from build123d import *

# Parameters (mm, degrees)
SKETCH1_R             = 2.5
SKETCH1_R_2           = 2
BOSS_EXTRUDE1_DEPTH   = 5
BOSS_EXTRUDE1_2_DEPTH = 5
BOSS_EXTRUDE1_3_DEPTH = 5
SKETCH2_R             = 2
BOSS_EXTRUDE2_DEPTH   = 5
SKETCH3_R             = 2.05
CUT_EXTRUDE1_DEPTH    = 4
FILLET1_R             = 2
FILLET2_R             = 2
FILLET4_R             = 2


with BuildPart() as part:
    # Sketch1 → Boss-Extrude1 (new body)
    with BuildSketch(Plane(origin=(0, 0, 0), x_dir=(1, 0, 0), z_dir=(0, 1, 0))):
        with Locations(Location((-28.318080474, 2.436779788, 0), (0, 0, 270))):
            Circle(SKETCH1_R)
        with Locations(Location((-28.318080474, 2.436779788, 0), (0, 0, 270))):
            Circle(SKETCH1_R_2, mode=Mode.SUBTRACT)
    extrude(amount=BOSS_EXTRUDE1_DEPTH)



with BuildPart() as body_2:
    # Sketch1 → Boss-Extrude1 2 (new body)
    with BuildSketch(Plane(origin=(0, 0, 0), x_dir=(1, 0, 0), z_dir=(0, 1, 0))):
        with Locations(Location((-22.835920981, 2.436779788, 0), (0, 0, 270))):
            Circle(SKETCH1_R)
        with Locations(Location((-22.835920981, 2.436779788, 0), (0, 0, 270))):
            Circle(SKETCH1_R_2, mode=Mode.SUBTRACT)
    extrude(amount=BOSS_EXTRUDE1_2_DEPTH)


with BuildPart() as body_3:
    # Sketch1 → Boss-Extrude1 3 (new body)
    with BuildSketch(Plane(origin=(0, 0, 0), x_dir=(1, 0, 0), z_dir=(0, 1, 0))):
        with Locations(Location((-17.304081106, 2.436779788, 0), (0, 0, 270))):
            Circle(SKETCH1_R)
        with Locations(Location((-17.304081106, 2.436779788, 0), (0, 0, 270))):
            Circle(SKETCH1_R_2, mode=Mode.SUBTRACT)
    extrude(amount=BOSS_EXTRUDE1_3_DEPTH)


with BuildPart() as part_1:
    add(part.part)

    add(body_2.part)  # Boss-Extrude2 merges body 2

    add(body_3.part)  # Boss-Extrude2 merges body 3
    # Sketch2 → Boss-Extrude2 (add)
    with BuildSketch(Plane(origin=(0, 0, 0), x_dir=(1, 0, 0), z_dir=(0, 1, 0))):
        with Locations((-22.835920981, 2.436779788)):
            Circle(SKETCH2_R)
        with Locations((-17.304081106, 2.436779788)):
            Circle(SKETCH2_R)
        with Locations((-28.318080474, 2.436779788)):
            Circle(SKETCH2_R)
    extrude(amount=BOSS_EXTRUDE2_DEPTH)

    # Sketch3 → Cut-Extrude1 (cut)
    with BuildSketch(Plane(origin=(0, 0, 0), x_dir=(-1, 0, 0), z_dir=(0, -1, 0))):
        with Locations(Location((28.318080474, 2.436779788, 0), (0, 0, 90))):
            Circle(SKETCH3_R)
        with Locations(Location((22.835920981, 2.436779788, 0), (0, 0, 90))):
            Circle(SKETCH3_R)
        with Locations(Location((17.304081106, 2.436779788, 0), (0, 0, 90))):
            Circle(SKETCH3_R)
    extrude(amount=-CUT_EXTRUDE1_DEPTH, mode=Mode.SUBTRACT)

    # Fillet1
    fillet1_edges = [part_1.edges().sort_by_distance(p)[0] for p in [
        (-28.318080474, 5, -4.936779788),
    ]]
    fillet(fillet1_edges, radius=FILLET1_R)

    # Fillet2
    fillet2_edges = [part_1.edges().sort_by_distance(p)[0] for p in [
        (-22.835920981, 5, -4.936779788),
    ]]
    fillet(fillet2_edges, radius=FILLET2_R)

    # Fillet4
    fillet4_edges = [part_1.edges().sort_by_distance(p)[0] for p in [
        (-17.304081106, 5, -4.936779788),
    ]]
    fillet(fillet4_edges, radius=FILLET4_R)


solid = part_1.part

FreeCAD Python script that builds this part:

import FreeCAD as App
import Part
import Sketcher
from FreeCAD import Vector
Q = App.Units.Quantity


def edges_at(feature, points):
    """Names of the edges that pass closest to the given points."""
    edges = feature.Shape.Edges
    near = lambda p: min(range(len(edges)), key=lambda i: edges[i].distToShape(Part.Vertex(*p))[0])
    return sorted({f"Edge{near(p) + 1}" for p in points})

doc = App.newDocument("Part")
body = doc.addObject("PartDesign::Body", "Body")

# Sketch on XZ plane
sketch1 = body.newObject("Sketcher::SketchObject", "Sketch")
sketch1.AttachmentSupport = (doc.getObject("XZ_Plane"), [""])
sketch1.MapMode = "FlatFace"
sketch1.addGeometry([
    Part.Circle(Vector(-28.3, -2.4, 0), Vector(0, 0, 1), 2.5),
    Part.Circle(Vector(-28.3, -2.4, 0), Vector(0, 0, 1), 2),
], False)
sketch1.addConstraint([
    Sketcher.Constraint("Coincident", 1, 3, 0, 3),
    Sketcher.Constraint("Diameter", 0, Q("5 mm")),
    Sketcher.Constraint("Diameter", 1, Q("4 mm")),
    Sketcher.Constraint("DistanceX", 0, 3, -1, 1, Q("28.31808 mm")),
    Sketcher.Constraint("DistanceY", 0, 3, -1, 1, Q("2.43678 mm")),
])
pad1 = body.newObject("PartDesign::Pad", "Pad")
pad1.Profile = sketch1
pad1.Length = 5
pad1.Reversed = True
body2 = doc.addObject("PartDesign::Body", "Body001")

# Sketch on XZ plane
sketch2 = body2.newObject("Sketcher::SketchObject", "Sketch001")
sketch2.AttachmentSupport = (doc.getObject("XZ_Plane001"), [""])
sketch2.MapMode = "FlatFace"
sketch2.addGeometry([
    Part.Circle(Vector(-22.8, -2.4, 0), Vector(0, 0, 1), 2.5),
    Part.Circle(Vector(-22.8, -2.4, 0), Vector(0, 0, 1), 2),
], False)
sketch2.addConstraint([
    Sketcher.Constraint("Coincident", 1, 3, 0, 3),
    Sketcher.Constraint("Diameter", 0, Q("5 mm")),
    Sketcher.Constraint("Diameter", 1, Q("4 mm")),
    Sketcher.Constraint("DistanceX", 0, 3, -1, 1, Q("22.835921 mm")),
    Sketcher.Constraint("DistanceY", 0, 3, -1, 1, Q("2.43678 mm")),
])
pad2 = body2.newObject("PartDesign::Pad", "Pad001")
pad2.Profile = sketch2
pad2.Length = 5
pad2.Reversed = True
body3 = doc.addObject("PartDesign::Body", "Body002")

# Sketch on XZ plane
sketch3 = body3.newObject("Sketcher::SketchObject", "Sketch002")
sketch3.AttachmentSupport = (doc.getObject("XZ_Plane002"), [""])
sketch3.MapMode = "FlatFace"
sketch3.addGeometry([
    Part.Circle(Vector(-17.3, -2.4, 0), Vector(0, 0, 1), 2.5),
    Part.Circle(Vector(-17.3, -2.4, 0), Vector(0, 0, 1), 2),
], False)
sketch3.addConstraint([
    Sketcher.Constraint("Coincident", 1, 3, 0, 3),
    Sketcher.Constraint("Diameter", 0, Q("5 mm")),
    Sketcher.Constraint("Diameter", 1, Q("4 mm")),
    Sketcher.Constraint("DistanceX", 0, 3, -1, 1, Q("17.304081 mm")),
    Sketcher.Constraint("DistanceY", 0, 3, -1, 1, Q("2.43678 mm")),
])
pad3 = body3.newObject("PartDesign::Pad", "Pad002")
pad3.Profile = sketch3
pad3.Length = 5
pad3.Reversed = True
body.AllowCompound = True
doc.recompute()

boolean = body.newObject("PartDesign::Boolean", "Boolean")
boolean.Type = "Fuse"
boolean.addObjects([body2])
doc.recompute()

boolean2 = body.newObject("PartDesign::Boolean", "Boolean001")
boolean2.Type = "Fuse"
boolean2.addObjects([body3])

# Sketch on XZ plane
sketch4 = body.newObject("Sketcher::SketchObject", "Sketch003")
sketch4.AttachmentSupport = (doc.getObject("XZ_Plane"), [""])
sketch4.MapMode = "FlatFace"
sketch4.addGeometry([
    Part.Circle(Vector(-22.8, -2.4, 0), Vector(0, 0, 1), 2),
    Part.Circle(Vector(-17.3, -2.4, 0), Vector(0, 0, 1), 2),
    Part.Circle(Vector(-28.3, -2.4, 0), Vector(0, 0, 1), 2),
], False)
sketch4.addConstraint([
    Sketcher.Constraint("Equal", 0, 1),
    Sketcher.Constraint("Equal", 1, 2),
    Sketcher.Constraint("Horizontal", 0, 3, 1, 3),
    Sketcher.Constraint("Horizontal", 1, 3, 2, 3),
    Sketcher.Constraint("Diameter", 0, Q("4 mm")),
    Sketcher.Constraint("DistanceX", 2, 3, 1, 3, Q("11.013999 mm")),
    Sketcher.Constraint("DistanceX", 0, 3, -1, 1, Q("22.835921 mm")),
    Sketcher.Constraint("DistanceY", 0, 3, -1, 1, Q("2.43678 mm")),
    Sketcher.Constraint("DistanceX", 1, 3, -1, 1, Q("17.304081 mm")),
])
pad4 = body.newObject("PartDesign::Pad", "Pad003")
pad4.Profile = sketch4
pad4.Length = 5
pad4.Reversed = True

# Sketch on XZ plane
sketch5 = body.newObject("Sketcher::SketchObject", "Sketch004")
sketch5.AttachmentSupport = (doc.getObject("XZ_Plane"), [""])
sketch5.MapMode = "FlatFace"
sketch5.addGeometry([
    Part.Circle(Vector(-28.3, -2.4, 0), Vector(0, 0, 1), 2),
    Part.Circle(Vector(-22.8, -2.4, 0), Vector(0, 0, 1), 2),
    Part.Circle(Vector(-17.3, -2.4, 0), Vector(0, 0, 1), 2),
], False)
sketch5.addConstraint([
    Sketcher.Constraint("Equal", 0, 1),
    Sketcher.Constraint("Equal", 1, 2),
    Sketcher.Constraint("Horizontal", 0, 3, 1, 3),
    Sketcher.Constraint("Horizontal", 1, 3, 2, 3),
    Sketcher.Constraint("Diameter", 0, Q("4.1 mm")),
    Sketcher.Constraint("DistanceX", 0, 3, 2, 3, Q("11.013999 mm")),
    Sketcher.Constraint("DistanceX", 0, 3, -1, 1, Q("28.31808 mm")),
    Sketcher.Constraint("DistanceY", 0, 3, -1, 1, Q("2.43678 mm")),
    Sketcher.Constraint("DistanceX", 1, 3, -1, 1, Q("22.835921 mm")),
])
pocket1 = body.newObject("PartDesign::Pocket", "Pocket")
pocket1.Profile = sketch5
pocket1.Length = 4
doc.recompute()

fillet = body.newObject("PartDesign::Fillet", "Fillet")
fillet.Base = (pocket1, edges_at(pocket1, [(-28.318, 5, -4.937)]))
fillet.Radius = 2
doc.recompute()

fillet2 = body.newObject("PartDesign::Fillet", "Fillet001")
fillet2.Base = (fillet, edges_at(fillet, [(-22.836, 5, -4.937)]))
fillet2.Radius = 2
doc.recompute()

fillet3 = body.newObject("PartDesign::Fillet", "Fillet002")
fillet3.Base = (fillet2, edges_at(fillet2, [(-17.304, 5, -4.937)]))
fillet3.Radius = 2

doc.recompute()
